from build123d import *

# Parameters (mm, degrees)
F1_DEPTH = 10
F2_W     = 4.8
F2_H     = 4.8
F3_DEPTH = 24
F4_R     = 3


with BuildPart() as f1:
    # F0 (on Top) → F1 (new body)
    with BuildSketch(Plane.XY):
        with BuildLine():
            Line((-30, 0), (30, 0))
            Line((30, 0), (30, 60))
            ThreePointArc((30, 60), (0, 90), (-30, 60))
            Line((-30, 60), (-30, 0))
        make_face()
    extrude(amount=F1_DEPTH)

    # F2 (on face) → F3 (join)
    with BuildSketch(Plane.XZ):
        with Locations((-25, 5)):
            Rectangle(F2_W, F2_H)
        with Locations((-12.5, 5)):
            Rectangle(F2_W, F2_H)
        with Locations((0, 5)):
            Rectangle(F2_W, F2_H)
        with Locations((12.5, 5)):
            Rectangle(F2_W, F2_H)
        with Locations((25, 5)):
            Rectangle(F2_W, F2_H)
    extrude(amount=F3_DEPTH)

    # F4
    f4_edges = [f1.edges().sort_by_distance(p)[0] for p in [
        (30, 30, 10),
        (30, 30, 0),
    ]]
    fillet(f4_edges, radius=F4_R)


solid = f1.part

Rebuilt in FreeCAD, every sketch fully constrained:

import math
import FreeCAD as App
import Part
import Sketcher
Q = App.Units.Quantity


def edges_at(feature, points):
    """Names of the edges that pass closest to the given points."""
    edges = feature.Shape.Edges
    near = lambda p: min(range(len(edges)), key=lambda i: edges[i].distToShape(Part.Vertex(*p))[0])
    return sorted({f"Edge{near(p) + 1}" for p in points})

doc = App.newDocument("Part")
body = doc.addObject("PartDesign::Body", "Body")

# Sketch on XY plane
sketch1 = body.newObject("Sketcher::SketchObject", "Sketch")
sketch1.AttachmentSupport = (doc.getObject("XY_Plane"), [""])
sketch1.MapMode = "FlatFace"
sketch1.addGeometry([
    Part.LineSegment(App.Vector(-30, 0, 0), App.Vector(30, 0, 0)),
    Part.LineSegment(App.Vector(30, 0, 0), App.Vector(30, 60, 0)),
    Part.ArcOfCircle(Part.Circle(App.Vector(0, 60, 0), App.Vector(0, 0, 1), 30), math.radians(0), math.radians(180)),
    Part.LineSegment(App.Vector(-30, 60, 0), App.Vector(-30, 0, 0)),
], False)
sketch1.addConstraint([
    Sketcher.Constraint("Coincident", 0, 2, 1, 1),
    Sketcher.Constraint("Tangent", 1, 2, 2, 1),
    Sketcher.Constraint("Tangent", 2, 2, 3, 1),
    Sketcher.Constraint("Coincident", 3, 2, 0, 1),
    Sketcher.Constraint("Horizontal", 0),
    Sketcher.Constraint("Vertical", 1),
    Sketcher.Constraint("Vertical", 3),
    Sketcher.Constraint("Symmetric", 0, 2, 3, 2, -1, 1),
    Sketcher.Constraint("Equal", 0, 1),
    Sketcher.Constraint("Radius", 2, Q("30 mm")),
])
pad1 = body.newObject("PartDesign::Pad", "Pad")
pad1.Profile = sketch1
pad1.Length = 10

# Sketch on XZ plane
sketch2 = body.newObject("Sketcher::SketchObject", "Sketch001")
sketch2.AttachmentSupport = (doc.getObject("XZ_Plane"), [""])
sketch2.MapMode = "FlatFace"
sketch2.addGeometry([
    Part.LineSegment(App.Vector(-27.4, 7.4, 0), App.Vector(-27.4, 2.6, 0)),  # 0
    Part.LineSegment(App.Vector(-27.4, 2.6, 0), App.Vector(-22.6, 2.6, 0)),  # 1
    Part.LineSegment(App.Vector(-22.6, 2.6, 0), App.Vector(-22.6, 7.4, 0)),  # 2
    Part.LineSegment(App.Vector(-22.6, 7.4, 0), App.Vector(-27.4, 7.4, 0)),  # 3
    Part.LineSegment(App.Vector(-14.9, 7.4, 0), App.Vector(-14.9, 2.6, 0)),  # 4
    Part.LineSegment(App.Vector(-14.9, 2.6, 0), App.Vector(-10.1, 2.6, 0)),  # 5
    Part.LineSegment(App.Vector(-10.1, 2.6, 0), App.Vector(-10.1, 7.4, 0)),  # 6
    Part.LineSegment(App.Vector(-10.1, 7.4, 0), App.Vector(-14.9, 7.4, 0)),  # 7
    Part.LineSegment(App.Vector(-2.4, 7.4, 0), App.Vector(-2.4, 2.6, 0)),  # 8
    Part.LineSegment(App.Vector(-2.4, 2.6, 0), App.Vector(2.4, 2.6, 0)),  # 9
    Part.LineSegment(App.Vector(2.4, 2.6, 0), App.Vector(2.4, 7.4, 0)),  # 10
    Part.LineSegment(App.Vector(2.4, 7.4, 0), App.Vector(-2.4, 7.4, 0)),  # 11
    Part.LineSegment(App.Vector(10.1, 7.4, 0), App.Vector(10.1, 2.6, 0)),  # 12
    Part.LineSegment(App.Vector(10.1, 2.6, 0), App.Vector(14.9, 2.6, 0)),  # 13
    Part.LineSegment(App.Vector(14.9, 2.6, 0), App.Vector(14.9, 7.4, 0)),  # 14
    Part.LineSegment(App.Vector(14.9, 7.4, 0), App.Vector(10.1, 7.4, 0)),  # 15
    Part.LineSegment(App.Vector(22.6, 7.4, 0), App.Vector(22.6, 2.6, 0)),  # 16
    Part.LineSegment(App.Vector(22.6, 2.6, 0), App.Vector(27.4, 2.6, 0)),  # 17
    Part.LineSegment(App.Vector(27.4, 2.6, 0), App.Vector(27.4, 7.4, 0)),  # 18
    Part.LineSegment(App.Vector(27.4, 7.4, 0), App.Vector(22.6, 7.4, 0)),  # 19
], False)
sketch2.addConstraint([
    Sketcher.Constraint("Coincident", 0, 2, 1, 1),
    Sketcher.Constraint("Coincident", 1, 2, 2, 1),
    Sketcher.Constraint("Coincident", 2, 2, 3, 1),
    Sketcher.Constraint("Coincident", 3, 2, 0, 1),
    Sketcher.Constraint("Coincident", 4, 2, 5, 1),
    Sketcher.Constraint("Coincident", 5, 2, 6, 1),
    Sketcher.Constraint("Coincident", 6, 2, 7, 1),
    Sketcher.Constraint("Coincident", 7, 2, 4, 1),
    Sketcher.Constraint("Coincident", 8, 2, 9, 1),
    Sketcher.Constraint("Coincident", 9, 2, 10, 1),
    Sketcher.Constraint("Coincident", 10, 2, 11, 1),
    Sketcher.Constraint("Coincident", 11, 2, 8, 1),
    Sketcher.Constraint("Coincident", 12, 2, 13, 1),
    Sketcher.Constraint("Coincident", 13, 2, 14, 1),
    Sketcher.Constraint("Coincident", 14, 2, 15, 1),
    Sketcher.Constraint("Coincident", 15, 2, 12, 1),
    Sketcher.Constraint("Coincident", 16, 2, 17, 1),
    Sketcher.Constraint("Coincident", 17, 2, 18, 1),
    Sketcher.Constraint("Coincident", 18, 2, 19, 1),
    Sketcher.Constraint("Coincident", 19, 2, 16, 1),
    Sketcher.Constraint("Vertical", 0),
    Sketcher.Constraint("Horizontal", 1),
    Sketcher.Constraint("Vertical", 2),
    Sketcher.Constraint("Horizontal", 3),
    Sketcher.Constraint("Vertical", 4),
    Sketcher.Constraint("Horizontal", 5),
    Sketcher.Constraint("Vertical", 6),
    Sketcher.Constraint("Horizontal", 7),
    Sketcher.Constraint("Vertical", 8),
    Sketcher.Constraint("Horizontal", 9),
    Sketcher.Constraint("Vertical", 10),
    Sketcher.Constraint("Horizontal", 11),
    Sketcher.Constraint("Vertical", 12),
    Sketcher.Constraint("Horizontal", 13),
    Sketcher.Constraint("Vertical", 14),
    Sketcher.Constraint("Horizontal", 15),
    Sketcher.Constraint("Vertical", 16),
    Sketcher.Constraint("Horizontal", 17),
    Sketcher.Constraint("Vertical", 18),
    Sketcher.Constraint("Horizontal", 19),
    Sketcher.Constraint("Symmetric", 5, 2, 12, 2, -2),
    Sketcher.Constraint("Symmetric", 7, 2, 14, 2, -2),
    Sketcher.Constraint("Symmetric", 1, 2, 16, 2, -2),
    Sketcher.Constraint("Symmetric", 3, 2, 18, 2, -2),
    Sketcher.Constraint("Horizontal", 1, 2, 4, 2),
    Sketcher.Constraint("Horizontal", 3, 2, 6, 2),
    Sketcher.Constraint("Horizontal", 5, 2, 8, 2),
    Sketcher.Constraint("Horizontal", 7, 2, 10, 2),
    Sketcher.Constraint("Equal", 3, 5),
    Sketcher.Constraint("Equal", 7, 9),
    Sketcher.Constraint("Equal", 19, 0),
    Sketcher.Constraint("DistanceX", 1, 1, 1, 2, Q("4.8 mm")),
    Sketcher.Constraint("DistanceX", 0, 2, -1, 1, Q("27.4 mm")),
    Sketcher.Constraint("DistanceY", -1, 1, 0, 2, Q("2.6 mm")),
    Sketcher.Constraint("DistanceX", 4, 2, -1, 1, Q("14.9 mm")),
    Sketcher.Constraint("DistanceX", 8, 2, -1, 1, Q("2.4 mm")),
])
pad2 = body.newObject("PartDesign::Pad", "Pad001")
pad2.Profile = sketch2
pad2.Length = 24
doc.recompute()

fillet = body.newObject("PartDesign::Fillet", "Fillet")
fillet.Base = (pad2, edges_at(pad2, [(30, 30, 10), (30, 30, 0)]))
fillet.Radius = 3

doc.recompute()
